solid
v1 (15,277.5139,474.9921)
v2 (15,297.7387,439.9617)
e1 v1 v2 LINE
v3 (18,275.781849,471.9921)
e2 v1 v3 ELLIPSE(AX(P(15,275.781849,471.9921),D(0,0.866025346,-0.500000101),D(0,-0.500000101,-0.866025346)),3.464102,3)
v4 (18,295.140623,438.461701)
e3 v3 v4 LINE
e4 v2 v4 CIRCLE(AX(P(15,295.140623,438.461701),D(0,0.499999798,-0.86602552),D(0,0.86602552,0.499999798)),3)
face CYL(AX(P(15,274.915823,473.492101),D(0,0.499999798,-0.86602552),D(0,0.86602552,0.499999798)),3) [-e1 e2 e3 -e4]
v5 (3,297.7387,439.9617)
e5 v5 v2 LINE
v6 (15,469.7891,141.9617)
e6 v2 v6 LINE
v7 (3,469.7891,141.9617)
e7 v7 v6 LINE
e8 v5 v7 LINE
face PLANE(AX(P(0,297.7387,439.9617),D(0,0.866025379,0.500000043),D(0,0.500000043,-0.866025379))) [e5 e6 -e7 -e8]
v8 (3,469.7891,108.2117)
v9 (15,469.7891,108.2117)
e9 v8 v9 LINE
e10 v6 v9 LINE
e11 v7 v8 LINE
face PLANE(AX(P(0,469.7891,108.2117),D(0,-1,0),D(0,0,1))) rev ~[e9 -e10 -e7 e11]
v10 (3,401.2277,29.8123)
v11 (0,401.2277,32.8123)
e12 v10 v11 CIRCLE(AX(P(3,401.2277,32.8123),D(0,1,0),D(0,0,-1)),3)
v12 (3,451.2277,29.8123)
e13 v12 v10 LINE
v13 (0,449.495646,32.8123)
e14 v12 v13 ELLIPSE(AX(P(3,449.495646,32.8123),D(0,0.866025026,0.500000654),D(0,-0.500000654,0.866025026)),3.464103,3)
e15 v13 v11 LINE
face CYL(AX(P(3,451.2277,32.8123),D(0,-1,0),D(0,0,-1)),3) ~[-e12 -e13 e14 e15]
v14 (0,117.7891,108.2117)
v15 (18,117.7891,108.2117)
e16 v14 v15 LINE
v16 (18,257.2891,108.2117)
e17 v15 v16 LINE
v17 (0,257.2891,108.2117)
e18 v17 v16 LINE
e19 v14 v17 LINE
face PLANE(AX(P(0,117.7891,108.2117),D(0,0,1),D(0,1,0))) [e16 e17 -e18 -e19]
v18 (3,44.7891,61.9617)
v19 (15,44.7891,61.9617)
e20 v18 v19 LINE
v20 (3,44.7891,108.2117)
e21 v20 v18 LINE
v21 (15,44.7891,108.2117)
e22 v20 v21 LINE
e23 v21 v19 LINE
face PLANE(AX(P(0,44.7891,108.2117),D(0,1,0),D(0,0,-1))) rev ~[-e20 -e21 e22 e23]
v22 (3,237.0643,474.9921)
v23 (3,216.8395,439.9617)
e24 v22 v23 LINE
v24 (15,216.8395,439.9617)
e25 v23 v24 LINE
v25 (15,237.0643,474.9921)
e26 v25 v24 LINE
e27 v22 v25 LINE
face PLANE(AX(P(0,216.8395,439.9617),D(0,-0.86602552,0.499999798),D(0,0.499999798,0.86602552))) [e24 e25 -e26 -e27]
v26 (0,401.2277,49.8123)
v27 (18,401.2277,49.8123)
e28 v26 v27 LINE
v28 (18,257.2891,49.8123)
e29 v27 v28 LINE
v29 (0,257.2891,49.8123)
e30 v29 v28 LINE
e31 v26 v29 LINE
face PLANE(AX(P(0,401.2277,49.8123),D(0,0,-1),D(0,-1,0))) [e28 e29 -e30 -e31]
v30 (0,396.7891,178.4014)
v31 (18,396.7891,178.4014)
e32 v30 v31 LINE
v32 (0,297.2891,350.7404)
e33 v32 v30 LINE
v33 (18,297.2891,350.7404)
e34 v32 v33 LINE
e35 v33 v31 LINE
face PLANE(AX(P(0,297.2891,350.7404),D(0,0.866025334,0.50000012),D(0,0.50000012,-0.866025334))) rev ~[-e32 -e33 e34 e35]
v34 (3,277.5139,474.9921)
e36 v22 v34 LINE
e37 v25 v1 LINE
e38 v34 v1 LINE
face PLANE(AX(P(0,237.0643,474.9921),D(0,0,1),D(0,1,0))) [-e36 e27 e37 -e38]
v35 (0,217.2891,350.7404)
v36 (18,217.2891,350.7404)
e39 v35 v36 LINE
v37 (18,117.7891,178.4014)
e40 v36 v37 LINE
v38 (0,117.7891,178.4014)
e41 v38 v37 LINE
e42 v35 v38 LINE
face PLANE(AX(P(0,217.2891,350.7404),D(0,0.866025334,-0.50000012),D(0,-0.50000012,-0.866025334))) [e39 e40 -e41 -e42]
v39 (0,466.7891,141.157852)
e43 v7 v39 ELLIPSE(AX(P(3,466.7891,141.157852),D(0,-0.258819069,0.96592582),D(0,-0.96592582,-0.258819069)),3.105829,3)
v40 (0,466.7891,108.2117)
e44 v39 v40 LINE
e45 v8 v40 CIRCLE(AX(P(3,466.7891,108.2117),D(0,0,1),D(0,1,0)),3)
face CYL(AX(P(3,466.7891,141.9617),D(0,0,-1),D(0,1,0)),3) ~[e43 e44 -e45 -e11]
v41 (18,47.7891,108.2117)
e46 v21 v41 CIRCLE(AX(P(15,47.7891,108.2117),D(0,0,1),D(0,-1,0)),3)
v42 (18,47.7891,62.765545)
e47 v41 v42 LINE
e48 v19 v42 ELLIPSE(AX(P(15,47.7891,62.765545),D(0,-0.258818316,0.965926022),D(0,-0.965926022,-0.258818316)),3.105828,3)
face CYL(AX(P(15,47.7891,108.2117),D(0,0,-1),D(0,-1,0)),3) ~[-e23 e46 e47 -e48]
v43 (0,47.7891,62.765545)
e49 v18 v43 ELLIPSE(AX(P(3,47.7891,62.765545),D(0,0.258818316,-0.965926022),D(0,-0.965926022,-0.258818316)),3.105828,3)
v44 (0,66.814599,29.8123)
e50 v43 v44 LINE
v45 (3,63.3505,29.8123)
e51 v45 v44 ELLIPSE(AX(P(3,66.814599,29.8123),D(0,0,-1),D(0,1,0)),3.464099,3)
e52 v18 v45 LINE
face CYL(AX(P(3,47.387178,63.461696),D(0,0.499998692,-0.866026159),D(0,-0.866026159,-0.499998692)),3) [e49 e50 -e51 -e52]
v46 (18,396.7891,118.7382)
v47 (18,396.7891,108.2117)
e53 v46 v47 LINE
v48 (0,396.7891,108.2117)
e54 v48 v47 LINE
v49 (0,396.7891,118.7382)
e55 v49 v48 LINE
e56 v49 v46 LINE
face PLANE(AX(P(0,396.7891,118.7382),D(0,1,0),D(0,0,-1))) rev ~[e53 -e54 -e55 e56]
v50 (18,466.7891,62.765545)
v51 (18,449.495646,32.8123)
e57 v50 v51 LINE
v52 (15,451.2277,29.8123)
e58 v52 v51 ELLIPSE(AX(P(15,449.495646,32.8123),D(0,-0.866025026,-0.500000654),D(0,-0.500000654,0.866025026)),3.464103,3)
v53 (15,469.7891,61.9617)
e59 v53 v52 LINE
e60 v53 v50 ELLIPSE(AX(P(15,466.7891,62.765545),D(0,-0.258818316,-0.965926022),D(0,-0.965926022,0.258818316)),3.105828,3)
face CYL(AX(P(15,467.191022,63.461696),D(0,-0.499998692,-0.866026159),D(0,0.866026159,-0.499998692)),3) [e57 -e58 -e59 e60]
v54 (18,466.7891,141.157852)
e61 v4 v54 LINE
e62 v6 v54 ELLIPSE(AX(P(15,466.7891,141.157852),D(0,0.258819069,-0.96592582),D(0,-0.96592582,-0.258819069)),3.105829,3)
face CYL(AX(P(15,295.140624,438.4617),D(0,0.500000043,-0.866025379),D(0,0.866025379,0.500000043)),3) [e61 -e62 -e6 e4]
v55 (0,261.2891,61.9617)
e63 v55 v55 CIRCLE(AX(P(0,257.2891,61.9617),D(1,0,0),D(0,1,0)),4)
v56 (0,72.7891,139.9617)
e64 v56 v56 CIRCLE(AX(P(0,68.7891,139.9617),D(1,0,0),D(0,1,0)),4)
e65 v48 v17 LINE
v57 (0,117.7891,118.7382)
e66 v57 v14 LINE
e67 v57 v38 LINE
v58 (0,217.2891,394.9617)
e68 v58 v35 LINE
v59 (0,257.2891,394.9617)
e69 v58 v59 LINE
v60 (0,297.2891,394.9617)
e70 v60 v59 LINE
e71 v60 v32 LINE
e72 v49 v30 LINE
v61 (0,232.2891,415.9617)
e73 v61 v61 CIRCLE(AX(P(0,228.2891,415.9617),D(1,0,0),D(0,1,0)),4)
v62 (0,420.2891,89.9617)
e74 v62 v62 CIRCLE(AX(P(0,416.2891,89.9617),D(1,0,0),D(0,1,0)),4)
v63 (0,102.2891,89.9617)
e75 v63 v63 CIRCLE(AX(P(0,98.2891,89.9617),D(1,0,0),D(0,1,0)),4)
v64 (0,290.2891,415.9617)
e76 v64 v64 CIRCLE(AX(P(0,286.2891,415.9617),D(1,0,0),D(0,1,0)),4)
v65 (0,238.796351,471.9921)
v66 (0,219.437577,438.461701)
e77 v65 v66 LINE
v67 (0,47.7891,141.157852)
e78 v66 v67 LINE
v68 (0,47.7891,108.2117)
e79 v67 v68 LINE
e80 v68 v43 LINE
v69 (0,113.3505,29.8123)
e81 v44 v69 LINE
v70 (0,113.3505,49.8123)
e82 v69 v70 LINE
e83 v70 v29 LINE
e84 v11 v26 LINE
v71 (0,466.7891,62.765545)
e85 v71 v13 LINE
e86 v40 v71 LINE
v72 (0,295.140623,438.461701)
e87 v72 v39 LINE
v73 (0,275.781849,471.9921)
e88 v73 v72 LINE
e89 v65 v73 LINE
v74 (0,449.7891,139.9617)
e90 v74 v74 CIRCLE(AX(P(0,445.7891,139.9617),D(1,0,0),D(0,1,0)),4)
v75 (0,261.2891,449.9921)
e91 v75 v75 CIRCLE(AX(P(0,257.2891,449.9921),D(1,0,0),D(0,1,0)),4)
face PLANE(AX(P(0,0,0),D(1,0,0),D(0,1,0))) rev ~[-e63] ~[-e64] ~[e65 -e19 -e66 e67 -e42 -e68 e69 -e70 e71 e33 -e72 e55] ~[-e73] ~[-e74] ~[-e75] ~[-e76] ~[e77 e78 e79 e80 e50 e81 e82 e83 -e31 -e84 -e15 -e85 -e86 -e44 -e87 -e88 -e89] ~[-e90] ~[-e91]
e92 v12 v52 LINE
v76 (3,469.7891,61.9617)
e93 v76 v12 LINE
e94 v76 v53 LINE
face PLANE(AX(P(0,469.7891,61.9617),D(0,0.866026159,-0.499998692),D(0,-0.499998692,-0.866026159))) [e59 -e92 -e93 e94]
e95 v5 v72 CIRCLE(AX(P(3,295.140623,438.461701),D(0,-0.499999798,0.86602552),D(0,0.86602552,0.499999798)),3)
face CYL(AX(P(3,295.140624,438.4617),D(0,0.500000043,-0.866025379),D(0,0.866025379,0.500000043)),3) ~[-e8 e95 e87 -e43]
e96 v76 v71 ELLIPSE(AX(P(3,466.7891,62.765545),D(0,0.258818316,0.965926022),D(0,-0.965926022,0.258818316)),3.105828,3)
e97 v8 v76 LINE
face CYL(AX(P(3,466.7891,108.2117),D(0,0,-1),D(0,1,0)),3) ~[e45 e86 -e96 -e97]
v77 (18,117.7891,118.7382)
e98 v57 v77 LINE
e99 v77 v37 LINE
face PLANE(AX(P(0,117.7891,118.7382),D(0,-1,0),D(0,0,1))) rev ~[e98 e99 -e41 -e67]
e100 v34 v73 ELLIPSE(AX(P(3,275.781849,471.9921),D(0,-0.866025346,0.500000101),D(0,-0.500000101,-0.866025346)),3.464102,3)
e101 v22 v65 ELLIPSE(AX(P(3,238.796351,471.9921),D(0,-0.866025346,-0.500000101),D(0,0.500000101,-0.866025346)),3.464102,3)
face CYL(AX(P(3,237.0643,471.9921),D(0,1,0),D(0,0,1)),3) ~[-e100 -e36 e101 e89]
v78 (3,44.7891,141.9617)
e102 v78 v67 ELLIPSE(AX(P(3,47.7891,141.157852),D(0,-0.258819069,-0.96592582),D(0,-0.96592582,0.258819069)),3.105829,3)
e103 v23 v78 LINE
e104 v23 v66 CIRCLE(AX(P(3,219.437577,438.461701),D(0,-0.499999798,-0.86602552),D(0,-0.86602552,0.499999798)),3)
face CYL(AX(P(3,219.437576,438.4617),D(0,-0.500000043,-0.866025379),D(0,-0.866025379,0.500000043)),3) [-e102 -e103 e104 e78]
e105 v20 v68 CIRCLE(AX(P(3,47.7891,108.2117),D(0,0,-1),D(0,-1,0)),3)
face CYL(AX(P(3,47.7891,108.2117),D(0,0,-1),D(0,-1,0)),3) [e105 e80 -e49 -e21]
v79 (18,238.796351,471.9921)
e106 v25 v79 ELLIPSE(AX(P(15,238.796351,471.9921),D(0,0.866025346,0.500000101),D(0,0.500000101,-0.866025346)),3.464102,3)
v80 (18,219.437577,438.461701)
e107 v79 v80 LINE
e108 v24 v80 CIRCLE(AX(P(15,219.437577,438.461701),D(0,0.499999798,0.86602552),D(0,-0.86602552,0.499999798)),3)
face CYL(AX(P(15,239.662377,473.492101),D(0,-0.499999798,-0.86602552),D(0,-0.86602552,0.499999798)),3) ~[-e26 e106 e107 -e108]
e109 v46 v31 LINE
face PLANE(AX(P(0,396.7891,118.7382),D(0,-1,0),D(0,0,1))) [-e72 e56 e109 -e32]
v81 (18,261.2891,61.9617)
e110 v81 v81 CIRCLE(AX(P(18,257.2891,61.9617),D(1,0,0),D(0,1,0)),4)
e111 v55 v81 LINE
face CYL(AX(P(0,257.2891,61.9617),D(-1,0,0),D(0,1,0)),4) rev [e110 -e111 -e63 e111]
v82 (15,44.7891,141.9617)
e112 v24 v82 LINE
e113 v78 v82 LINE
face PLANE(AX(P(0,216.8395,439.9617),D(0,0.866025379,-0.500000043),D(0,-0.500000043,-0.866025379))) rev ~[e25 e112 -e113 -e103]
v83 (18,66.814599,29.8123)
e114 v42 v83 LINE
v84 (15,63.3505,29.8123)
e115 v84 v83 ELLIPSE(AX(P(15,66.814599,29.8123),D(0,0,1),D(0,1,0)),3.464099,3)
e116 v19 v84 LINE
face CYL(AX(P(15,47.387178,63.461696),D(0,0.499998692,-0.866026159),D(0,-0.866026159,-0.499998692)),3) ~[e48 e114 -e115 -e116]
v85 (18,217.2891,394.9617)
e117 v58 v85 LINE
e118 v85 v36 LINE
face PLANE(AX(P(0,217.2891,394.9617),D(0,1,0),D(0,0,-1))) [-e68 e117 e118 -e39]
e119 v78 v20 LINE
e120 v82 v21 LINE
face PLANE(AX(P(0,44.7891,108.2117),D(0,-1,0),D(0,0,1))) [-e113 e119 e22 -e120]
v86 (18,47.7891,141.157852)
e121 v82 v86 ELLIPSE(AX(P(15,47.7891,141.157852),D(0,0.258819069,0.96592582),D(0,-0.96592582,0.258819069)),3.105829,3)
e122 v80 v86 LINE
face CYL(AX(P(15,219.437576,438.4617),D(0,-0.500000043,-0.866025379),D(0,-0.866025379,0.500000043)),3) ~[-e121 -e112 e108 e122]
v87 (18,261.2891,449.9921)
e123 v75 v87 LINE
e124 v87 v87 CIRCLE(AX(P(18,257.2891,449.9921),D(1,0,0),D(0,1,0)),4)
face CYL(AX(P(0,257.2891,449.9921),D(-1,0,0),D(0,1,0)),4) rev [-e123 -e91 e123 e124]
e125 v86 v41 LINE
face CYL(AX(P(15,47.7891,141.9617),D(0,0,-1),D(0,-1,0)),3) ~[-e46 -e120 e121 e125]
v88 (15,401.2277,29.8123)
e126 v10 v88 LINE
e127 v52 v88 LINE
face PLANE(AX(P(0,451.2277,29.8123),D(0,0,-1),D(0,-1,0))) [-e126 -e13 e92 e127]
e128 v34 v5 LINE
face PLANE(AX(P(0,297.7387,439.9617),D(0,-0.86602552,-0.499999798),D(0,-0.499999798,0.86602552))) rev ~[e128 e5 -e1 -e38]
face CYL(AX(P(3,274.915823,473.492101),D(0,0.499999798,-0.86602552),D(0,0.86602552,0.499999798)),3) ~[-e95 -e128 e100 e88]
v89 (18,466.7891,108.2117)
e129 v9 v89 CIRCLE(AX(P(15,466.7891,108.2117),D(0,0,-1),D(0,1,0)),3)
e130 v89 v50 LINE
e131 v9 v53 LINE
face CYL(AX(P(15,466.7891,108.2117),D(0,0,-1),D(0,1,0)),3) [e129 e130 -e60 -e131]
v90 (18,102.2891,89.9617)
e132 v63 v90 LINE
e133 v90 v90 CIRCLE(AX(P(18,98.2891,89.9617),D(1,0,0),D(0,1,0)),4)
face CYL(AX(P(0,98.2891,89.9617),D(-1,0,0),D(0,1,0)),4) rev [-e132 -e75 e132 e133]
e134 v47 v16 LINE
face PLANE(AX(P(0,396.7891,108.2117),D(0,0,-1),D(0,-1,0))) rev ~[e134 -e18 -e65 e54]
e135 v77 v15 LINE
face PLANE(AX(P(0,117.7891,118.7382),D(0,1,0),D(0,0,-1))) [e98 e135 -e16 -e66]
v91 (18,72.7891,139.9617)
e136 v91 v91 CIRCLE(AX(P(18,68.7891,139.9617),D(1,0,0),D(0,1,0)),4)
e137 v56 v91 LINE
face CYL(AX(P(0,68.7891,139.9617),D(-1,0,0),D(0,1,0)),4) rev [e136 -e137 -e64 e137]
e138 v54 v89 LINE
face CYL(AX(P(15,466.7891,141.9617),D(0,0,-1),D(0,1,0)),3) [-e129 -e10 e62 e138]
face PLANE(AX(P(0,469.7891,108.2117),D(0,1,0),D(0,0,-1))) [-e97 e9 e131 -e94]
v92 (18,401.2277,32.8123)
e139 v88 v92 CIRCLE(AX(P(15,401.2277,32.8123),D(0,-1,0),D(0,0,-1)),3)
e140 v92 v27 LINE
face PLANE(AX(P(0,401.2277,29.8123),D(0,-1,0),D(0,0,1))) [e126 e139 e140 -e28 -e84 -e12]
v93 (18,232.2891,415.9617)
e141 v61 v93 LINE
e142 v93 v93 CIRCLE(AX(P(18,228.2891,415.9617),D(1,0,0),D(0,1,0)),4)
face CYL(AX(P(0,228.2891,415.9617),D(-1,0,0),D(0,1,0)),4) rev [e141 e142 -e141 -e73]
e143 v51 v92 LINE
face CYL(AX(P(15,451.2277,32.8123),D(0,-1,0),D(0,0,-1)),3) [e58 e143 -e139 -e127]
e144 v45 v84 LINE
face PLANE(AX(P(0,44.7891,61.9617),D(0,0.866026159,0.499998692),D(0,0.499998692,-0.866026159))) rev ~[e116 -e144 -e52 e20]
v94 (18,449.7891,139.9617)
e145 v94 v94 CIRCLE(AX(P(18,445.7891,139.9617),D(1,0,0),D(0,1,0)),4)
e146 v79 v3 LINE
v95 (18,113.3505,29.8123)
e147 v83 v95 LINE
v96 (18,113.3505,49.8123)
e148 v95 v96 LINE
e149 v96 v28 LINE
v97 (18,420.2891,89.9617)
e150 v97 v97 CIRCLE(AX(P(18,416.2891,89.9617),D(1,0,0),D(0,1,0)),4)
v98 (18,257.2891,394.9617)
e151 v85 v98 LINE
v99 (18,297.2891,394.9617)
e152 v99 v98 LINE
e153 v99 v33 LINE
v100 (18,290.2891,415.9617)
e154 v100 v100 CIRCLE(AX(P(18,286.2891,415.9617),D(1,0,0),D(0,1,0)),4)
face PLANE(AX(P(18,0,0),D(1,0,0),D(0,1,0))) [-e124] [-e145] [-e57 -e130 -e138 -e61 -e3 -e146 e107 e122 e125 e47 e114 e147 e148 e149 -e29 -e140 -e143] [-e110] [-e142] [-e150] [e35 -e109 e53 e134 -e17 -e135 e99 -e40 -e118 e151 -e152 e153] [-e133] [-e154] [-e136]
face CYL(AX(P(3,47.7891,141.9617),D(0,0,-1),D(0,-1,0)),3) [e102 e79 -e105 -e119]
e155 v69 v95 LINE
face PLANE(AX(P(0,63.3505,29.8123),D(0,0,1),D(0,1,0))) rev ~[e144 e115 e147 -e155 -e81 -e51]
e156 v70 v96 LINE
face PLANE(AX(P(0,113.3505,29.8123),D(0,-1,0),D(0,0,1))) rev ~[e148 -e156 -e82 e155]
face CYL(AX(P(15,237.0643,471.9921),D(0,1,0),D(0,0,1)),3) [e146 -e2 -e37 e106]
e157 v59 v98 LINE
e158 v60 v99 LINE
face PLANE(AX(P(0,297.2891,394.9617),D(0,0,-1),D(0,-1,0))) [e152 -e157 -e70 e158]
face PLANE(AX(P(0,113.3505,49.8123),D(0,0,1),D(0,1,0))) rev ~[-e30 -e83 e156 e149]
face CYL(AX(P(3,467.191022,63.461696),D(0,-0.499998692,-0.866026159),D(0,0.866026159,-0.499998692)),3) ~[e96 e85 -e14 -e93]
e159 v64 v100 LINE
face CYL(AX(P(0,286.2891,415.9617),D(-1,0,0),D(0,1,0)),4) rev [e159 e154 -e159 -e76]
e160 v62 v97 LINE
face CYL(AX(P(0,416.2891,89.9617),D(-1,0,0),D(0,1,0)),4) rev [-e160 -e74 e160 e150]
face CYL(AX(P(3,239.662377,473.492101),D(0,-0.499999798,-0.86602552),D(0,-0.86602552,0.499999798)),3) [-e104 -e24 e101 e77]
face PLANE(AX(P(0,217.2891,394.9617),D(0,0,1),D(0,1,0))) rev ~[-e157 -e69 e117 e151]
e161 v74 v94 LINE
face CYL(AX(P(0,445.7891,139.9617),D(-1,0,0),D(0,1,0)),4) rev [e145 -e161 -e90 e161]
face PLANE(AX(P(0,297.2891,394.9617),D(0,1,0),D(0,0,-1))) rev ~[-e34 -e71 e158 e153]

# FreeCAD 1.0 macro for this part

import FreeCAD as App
import Part
import Sketcher
Q = App.Units.Quantity


def edges_at(feature, points):
    """Names of the edges that pass closest to the given points."""
    edges = feature.Shape.Edges
    near = lambda p: min(range(len(edges)), key=lambda i: edges[i].distToShape(Part.Vertex(*p))[0])
    return sorted({f"Edge{near(p) + 1}" for p in points})

doc = App.newDocument("Part")
body = doc.addObject("PartDesign::Body", "Body")

# Sketch on YZ plane
sketch1 = doc.addObject("Sketcher::SketchObject", "Sketch")
body.addObject(sketch1)
sketch1.AttachmentSupport = (doc.YZ_Plane, [""])
sketch1.MapMode = "FlatFace"
sketch1.addGeometry([
    Part.LineSegment(App.Vector(237.1, 475, 0), App.Vector(216.8, 440, 0)),  # 0
    Part.LineSegment(App.Vector(216.8, 440, 0), App.Vector(44.8, 142, 0)),  # 1
    Part.LineSegment(App.Vector(44.8, 142, 0), App.Vector(44.8, 62, 0)),  # 2
    Part.LineSegment(App.Vector(44.8, 62, 0), App.Vector(63.4, 29.8, 0)),  # 3
    Part.LineSegment(App.Vector(63.4, 29.8, 0), App.Vector(113.4, 29.8, 0)),  # 4
    Part.LineSegment(App.Vector(113.4, 29.8, 0), App.Vector(113.4, 49.8, 0)),  # 5
    Part.LineSegment(App.Vector(113.4, 49.8, 0), App.Vector(401.2, 49.8, 0)),  # 6
    Part.LineSegment(App.Vector(401.2, 49.8, 0), App.Vector(401.2, 29.8, 0)),  # 7
    Part.LineSegment(App.Vector(401.2, 29.8, 0), App.Vector(451.2, 29.8, 0)),  # 8
    Part.LineSegment(App.Vector(451.2, 29.8, 0), App.Vector(469.8, 62, 0)),  # 9
    Part.LineSegment(App.Vector(469.8, 62, 0), App.Vector(469.8, 142, 0)),  # 10
    Part.LineSegment(App.Vector(469.8, 142, 0), App.Vector(297.7, 440, 0)),  # 11
    Part.LineSegment(App.Vector(297.7, 440, 0), App.Vector(277.5, 475, 0)),  # 12
    Part.LineSegment(App.Vector(277.5, 475, 0), App.Vector(237.1, 475, 0)),  # 13
    Part.Circle(App.Vector(68.8, 140, 0), App.Vector(0, 0, 1), 4),  # 14
    Part.Circle(App.Vector(98.3, 90, 0), App.Vector(0, 0, 1), 4),  # 15
    Part.Circle(App.Vector(257.3, 62, 0), App.Vector(0, 0, 1), 4),  # 16
    Part.Circle(App.Vector(416.3, 90, 0), App.Vector(0, 0, 1), 4),  # 17
    Part.Circle(App.Vector(445.8, 140, 0), App.Vector(0, 0, 1), 4),  # 18
    Part.LineSegment(App.Vector(117.8, 108.2, 0), App.Vector(117.8, 178.4, 0)),  # 19
    Part.LineSegment(App.Vector(117.8, 178.4, 0), App.Vector(217.3, 350.7, 0)),  # 20
    Part.LineSegment(App.Vector(217.3, 350.7, 0), App.Vector(217.3, 395, 0)),  # 21
    Part.LineSegment(App.Vector(217.3, 395, 0), App.Vector(297.3, 395, 0)),  # 22
    Part.LineSegment(App.Vector(297.3, 395, 0), App.Vector(297.3, 350.7, 0)),  # 23
    Part.LineSegment(App.Vector(297.3, 350.7, 0), App.Vector(396.8, 178.4, 0)),  # 24
    Part.LineSegment(App.Vector(396.8, 178.4, 0), App.Vector(396.8, 108.2, 0)),  # 25
    Part.LineSegment(App.Vector(396.8, 108.2, 0), App.Vector(117.8, 108.2, 0)),  # 26
    Part.Circle(App.Vector(228.3, 416, 0), App.Vector(0, 0, 1), 4),  # 27
    Part.Circle(App.Vector(286.3, 416, 0), App.Vector(0, 0, 1), 4),  # 28
    Part.Circle(App.Vector(257.3, 450, 0), App.Vector(0, 0, 1), 4),  # 29
], False)
sketch1.addConstraint([
    Sketcher.Constraint("Coincident", 0, 2, 1, 1),
    Sketcher.Constraint("Coincident", 1, 2, 2, 1),
    Sketcher.Constraint("Coincident", 2, 2, 3, 1),
    Sketcher.Constraint("Coincident", 3, 2, 4, 1),
    Sketcher.Constraint("Coincident", 4, 2, 5, 1),
    Sketcher.Constraint("Coincident", 5, 2, 6, 1),
    Sketcher.Constraint("Coincident", 6, 2, 7, 1),
    Sketcher.Constraint("Coincident", 7, 2, 8, 1),
    Sketcher.Constraint("Coincident", 8, 2, 9, 1),
    Sketcher.Constraint("Coincident", 9, 2, 10, 1),
    Sketcher.Constraint("Coincident", 10, 2, 11, 1),
    Sketcher.Constraint("Coincident", 11, 2, 12, 1),
    Sketcher.Constraint("Coincident", 12, 2, 13, 1),
    Sketcher.Constraint("Coincident", 13, 2, 0, 1),
    Sketcher.Constraint("Coincident", 19, 2, 20, 1),
    Sketcher.Constraint("Coincident", 20, 2, 21, 1),
    Sketcher.Constraint("Coincident", 21, 2, 22, 1),
    Sketcher.Constraint("Coincident", 22, 2, 23, 1),
    Sketcher.Constraint("Coincident", 23, 2, 24, 1),
    Sketcher.Constraint("Coincident", 24, 2, 25, 1),
    Sketcher.Constraint("Coincident", 25, 2, 26, 1),
    Sketcher.Constraint("Coincident", 26, 2, 19, 1),
    Sketcher.Constraint("Vertical", 2),
    Sketcher.Constraint("Horizontal", 4),
    Sketcher.Constraint("Vertical", 5),
    Sketcher.Constraint("Horizontal", 6),
    Sketcher.Constraint("Vertical", 7),
    Sketcher.Constraint("Horizontal", 8),
    Sketcher.Constraint("Vertical", 10),
    Sketcher.Constraint("Horizontal", 13),
    Sketcher.Constraint("Vertical", 19),
    Sketcher.Constraint("Vertical", 21),
    Sketcher.Constraint("Horizontal", 22),
    Sketcher.Constraint("Vertical", 23),
    Sketcher.Constraint("Vertical", 25),
    Sketcher.Constraint("Horizontal", 26),
    Sketcher.Constraint("Equal", 14, 15),
    Sketcher.Constraint("Equal", 15, 16),
    Sketcher.Constraint("Equal", 16, 17),
    Sketcher.Constraint("Equal", 17, 18),
    Sketcher.Constraint("Equal", 18, 27),
    Sketcher.Constraint("Equal", 27, 28),
    Sketcher.Constraint("Equal", 28, 29),
    Sketcher.Constraint("Parallel", 0, 1),
    Sketcher.Constraint("Parallel", 1, 9),
    Sketcher.Constraint("Parallel", 3, 11),
    Sketcher.Constraint("Parallel", 11, 12),
    Sketcher.Constraint("Parallel", 9, 20),
    Sketcher.Constraint("Parallel", 12, 24),
    Sketcher.Constraint("Horizontal", 15, 3, 17, 3),
    Sketcher.Constraint("Horizontal", 14, 3, 18, 3),
    Sketcher.Constraint("Horizontal", 27, 3, 28, 3),
    Sketcher.Constraint("Horizontal", 16, 3, 2, 2),
    Sketcher.Constraint("Horizontal", 4, 2, 7, 2),
    Sketcher.Constraint("Horizontal", 2, 2, 9, 2),
    Sketcher.Constraint("Horizontal", 1, 2, 10, 2),
    Sketcher.Constraint("Horizontal", 0, 2, 11, 2),
    Sketcher.Constraint("Horizontal", 20, 2, 23, 2),
    Sketcher.Constraint("Horizontal", 19, 2, 24, 2),
    Sketcher.Constraint("Vertical", 16, 3, 29, 3),
    Sketcher.Constraint("Equal", 4, 8),
    Sketcher.Constraint("Equal", 22, 2),
    Sketcher.Constraint("Equal", 3, 9),
    Sketcher.Constraint("Diameter", 14, 8.0),
    Sketcher.Constraint("DistanceX", 14, 3, 15, 3, 29.5),
    Sketcher.Constraint("DistanceX", 17, 3, 18, 3, 29.5),
    Sketcher.Constraint("DistanceX", 4, 1, 4, 2, 50.0),
    Sketcher.Constraint("DistanceX", 22, 1, 22, 2, 80.0),
    Sketcher.Constraint("DistanceX", 26, 2, 26, 1, 279.0),
    Sketcher.Constraint("DistanceY", 5, 1, 5, 2, 20.0),
    Sketcher.Constraint("Angle", 0, Q("-120 deg")),
    Sketcher.Constraint("DistanceY", 15, 3, 14, 3, 50.0),
    Sketcher.Constraint("DistanceX", 15, 3, 16, 3, 159.0),
    Sketcher.Constraint("DistanceY", 16, 3, 15, 3, 28.0),
    Sketcher.Constraint("DistanceX", 16, 3, 17, 3, 159.0),
    Sketcher.Constraint("DistanceY", 14, 3, 27, 3, 276.0),
    Sketcher.Constraint("DistanceX", 15, 3, 27, 3, 130.0),
    Sketcher.Constraint("DistanceX", 27, 3, 28, 3, 58.0),
    Sketcher.Constraint("DistanceY", 27, 3, 0, 2, 24.0),
    Sketcher.Constraint("DistanceX", 1, 2, 14, 3, 24.0),
    Sketcher.Constraint("DistanceX", 18, 3, 9, 2, 24.0),
    Sketcher.Constraint("DistanceY", 29, 3, 12, 2, 25.0),
    Sketcher.Constraint("DistanceX", 14, 3, 19, 2, 49.0),
    Sketcher.Constraint("DistanceY", 21, 2, 27, 3, 21.0),
    Sketcher.Constraint("DistanceY", 17, 3, 25, 2, 18.25),
    Sketcher.Constraint("Distance", 3, 37.123),
    Sketcher.Constraint("DistanceX", 13, 2, 13, 1, 40.4496),
    Sketcher.Constraint("DistanceY", 19, 1, 19, 2, 70.1897),
    Sketcher.Constraint("DistanceX", -1, 1, 14, 3, 68.789),
    Sketcher.Constraint("DistanceY", -1, 1, 29, 3, 449.992),
])
pad1 = doc.addObject("PartDesign::Pad", "Pad")
body.addObject(pad1)
pad1.Profile = sketch1
pad1.Length = 18
doc.recompute()

fillet = doc.addObject("PartDesign::Fillet", "Fillet")
body.addObject(fillet)
fillet.Base = (pad1, edges_at(pad1, [
    (0, 140.927, 308.477),
    (18, 140.927, 308.477),
    (0, 44.789, 101.962),
    (18, 44.789, 101.962),
    (0, 54.07, 45.887),
    (18, 54.07, 45.887),
    (0, 426.228, 29.812),
    (18, 426.228, 29.812),
    (0, 460.508, 45.887),
    (18, 460.508, 45.887),
    (0, 469.789, 101.962),
    (18, 469.789, 101.962),
    (0, 373.651, 308.477),
    (18, 373.651, 308.477),
    (0, 257.289, 474.992),
    (18, 257.289, 474.992),
]))
fillet.Radius = 3

doc.recompute()
